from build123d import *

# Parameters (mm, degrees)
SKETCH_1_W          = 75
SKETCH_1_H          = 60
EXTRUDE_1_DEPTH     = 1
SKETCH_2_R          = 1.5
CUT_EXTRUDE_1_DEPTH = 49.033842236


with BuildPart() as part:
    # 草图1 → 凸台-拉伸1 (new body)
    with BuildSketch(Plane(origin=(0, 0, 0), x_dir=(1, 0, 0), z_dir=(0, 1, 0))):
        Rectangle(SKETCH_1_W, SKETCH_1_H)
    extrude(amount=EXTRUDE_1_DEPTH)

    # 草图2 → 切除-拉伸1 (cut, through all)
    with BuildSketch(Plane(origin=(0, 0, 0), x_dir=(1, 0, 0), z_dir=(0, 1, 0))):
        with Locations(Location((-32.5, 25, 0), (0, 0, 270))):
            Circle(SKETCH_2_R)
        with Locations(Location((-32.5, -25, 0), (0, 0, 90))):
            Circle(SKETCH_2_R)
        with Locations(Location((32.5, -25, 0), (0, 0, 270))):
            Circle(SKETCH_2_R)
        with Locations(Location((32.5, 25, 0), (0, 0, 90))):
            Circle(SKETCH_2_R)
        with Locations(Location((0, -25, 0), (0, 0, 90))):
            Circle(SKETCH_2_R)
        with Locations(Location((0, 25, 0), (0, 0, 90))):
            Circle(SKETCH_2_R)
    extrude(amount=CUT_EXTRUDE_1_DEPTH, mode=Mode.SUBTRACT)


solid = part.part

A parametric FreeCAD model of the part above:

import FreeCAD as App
import Part
import Sketcher

V = App.Vector
Q = App.Units.Quantity

doc = App.newDocument("Part")
body = doc.addObject("PartDesign::Body", "Body")

# Sketch on XZ plane
sketch1 = body.newObject("Sketcher::SketchObject", "Sketch")
sketch1.AttachmentSupport = (doc.getObject("XZ_Plane"), [""])
sketch1.MapMode = "FlatFace"
sketch1.addGeometry(Part.LineSegment(V(-38, -30, 0), V(-38, 30, 0)), False)
sketch1.addGeometry(Part.LineSegment(V(-38, 30, 0), V(38, 30, 0)), False)
sketch1.addGeometry(Part.LineSegment(V(38, 30, 0), V(38, -30, 0)), False)
sketch1.addGeometry(Part.LineSegment(V(38, -30, 0), V(-38, -30, 0)), False)
sketch1.addConstraint(Sketcher.Constraint("Coincident", 0, 2, 1, 1))
sketch1.addConstraint(Sketcher.Constraint("Coincident", 1, 2, 2, 1))
sketch1.addConstraint(Sketcher.Constraint("Coincident", 2, 2, 3, 1))
sketch1.addConstraint(Sketcher.Constraint("Coincident", 3, 2, 0, 1))
sketch1.addConstraint(Sketcher.Constraint("Vertical", 0))
sketch1.addConstraint(Sketcher.Constraint("Horizontal", 1))
sketch1.addConstraint(Sketcher.Constraint("Vertical", 2))
sketch1.addConstraint(Sketcher.Constraint("Horizontal", 3))
sketch1.addConstraint(Sketcher.Constraint("Symmetric", 0, 2, 2, 2, -1, 1))
sketch1.addConstraint(Sketcher.Constraint("DistanceX", 1, 1, 1, 2, Q("75 mm")))
sketch1.addConstraint(Sketcher.Constraint("DistanceY", 0, 1, 0, 2, Q("60 mm")))
pad1 = body.newObject("PartDesign::Pad", "Pad")
pad1.Profile = sketch1
pad1.Length = 1
pad1.Reversed = True

# Sketch on XZ plane
sketch2 = body.newObject("Sketcher::SketchObject", "Sketch001")
sketch2.AttachmentSupport = (doc.getObject("XZ_Plane"), [""])
sketch2.MapMode = "FlatFace"
sketch2.addGeometry(Part.Circle(V(-32.5, -25, 0), V(0, 0, 1), 1.5), False)
sketch2.addGeometry(Part.Circle(V(-32.5, 25, 0), V(0, 0, 1), 1.5), False)
sketch2.addGeometry(Part.Circle(V(32.5, 25, 0), V(0, 0, 1), 1.5), False)
sketch2.addGeometry(Part.Circle(V(32.5, -25, 0), V(0, 0, 1), 1.5), False)
sketch2.addGeometry(Part.Circle(V(0, 25, 0), V(0, 0, 1), 1.5), False)
sketch2.addGeometry(Part.Circle(V(0, -25, 0), V(0, 0, 1), 1.5), False)
sketch2.addConstraint(Sketcher.Constraint("Equal", 0, 1))
sketch2.addConstraint(Sketcher.Constraint("Equal", 1, 2))
sketch2.addConstraint(Sketcher.Constraint("Equal", 2, 3))
sketch2.addConstraint(Sketcher.Constraint("Equal", 3, 4))
sketch2.addConstraint(Sketcher.Constraint("Equal", 4, 5))
sketch2.addConstraint(Sketcher.Constraint("Symmetric", 0, 3, 2, 3, -1, 1))
sketch2.addConstraint(Sketcher.Constraint("Symmetric", 1, 3, 3, 3, -1, 1))
sketch2.addConstraint(Sketcher.Constraint("Symmetric", 4, 3, 5, 3, -1, 1))
sketch2.addConstraint(Sketcher.Constraint("Symmetric", 1, 3, 2, 3, -2))
sketch2.addConstraint(Sketcher.Constraint("PointOnObject", 4, 3, -2))
sketch2.addConstraint(Sketcher.Constraint("Horizontal", 2, 3, 4, 3))
sketch2.addConstraint(Sketcher.Constraint("Diameter", 0, Q("3 mm")))
sketch2.addConstraint(Sketcher.Constraint("DistanceY", 0, 3, -1, 1, Q("25 mm")))
sketch2.addConstraint(Sketcher.Constraint("DistanceX", 1, 3, 2, 3, Q("65 mm")))
pocket1 = body.newObject("PartDesign::Pocket", "Pocket")
pocket1.Profile = sketch2
pocket1.Type = "ThroughAll"

doc.recompute()
